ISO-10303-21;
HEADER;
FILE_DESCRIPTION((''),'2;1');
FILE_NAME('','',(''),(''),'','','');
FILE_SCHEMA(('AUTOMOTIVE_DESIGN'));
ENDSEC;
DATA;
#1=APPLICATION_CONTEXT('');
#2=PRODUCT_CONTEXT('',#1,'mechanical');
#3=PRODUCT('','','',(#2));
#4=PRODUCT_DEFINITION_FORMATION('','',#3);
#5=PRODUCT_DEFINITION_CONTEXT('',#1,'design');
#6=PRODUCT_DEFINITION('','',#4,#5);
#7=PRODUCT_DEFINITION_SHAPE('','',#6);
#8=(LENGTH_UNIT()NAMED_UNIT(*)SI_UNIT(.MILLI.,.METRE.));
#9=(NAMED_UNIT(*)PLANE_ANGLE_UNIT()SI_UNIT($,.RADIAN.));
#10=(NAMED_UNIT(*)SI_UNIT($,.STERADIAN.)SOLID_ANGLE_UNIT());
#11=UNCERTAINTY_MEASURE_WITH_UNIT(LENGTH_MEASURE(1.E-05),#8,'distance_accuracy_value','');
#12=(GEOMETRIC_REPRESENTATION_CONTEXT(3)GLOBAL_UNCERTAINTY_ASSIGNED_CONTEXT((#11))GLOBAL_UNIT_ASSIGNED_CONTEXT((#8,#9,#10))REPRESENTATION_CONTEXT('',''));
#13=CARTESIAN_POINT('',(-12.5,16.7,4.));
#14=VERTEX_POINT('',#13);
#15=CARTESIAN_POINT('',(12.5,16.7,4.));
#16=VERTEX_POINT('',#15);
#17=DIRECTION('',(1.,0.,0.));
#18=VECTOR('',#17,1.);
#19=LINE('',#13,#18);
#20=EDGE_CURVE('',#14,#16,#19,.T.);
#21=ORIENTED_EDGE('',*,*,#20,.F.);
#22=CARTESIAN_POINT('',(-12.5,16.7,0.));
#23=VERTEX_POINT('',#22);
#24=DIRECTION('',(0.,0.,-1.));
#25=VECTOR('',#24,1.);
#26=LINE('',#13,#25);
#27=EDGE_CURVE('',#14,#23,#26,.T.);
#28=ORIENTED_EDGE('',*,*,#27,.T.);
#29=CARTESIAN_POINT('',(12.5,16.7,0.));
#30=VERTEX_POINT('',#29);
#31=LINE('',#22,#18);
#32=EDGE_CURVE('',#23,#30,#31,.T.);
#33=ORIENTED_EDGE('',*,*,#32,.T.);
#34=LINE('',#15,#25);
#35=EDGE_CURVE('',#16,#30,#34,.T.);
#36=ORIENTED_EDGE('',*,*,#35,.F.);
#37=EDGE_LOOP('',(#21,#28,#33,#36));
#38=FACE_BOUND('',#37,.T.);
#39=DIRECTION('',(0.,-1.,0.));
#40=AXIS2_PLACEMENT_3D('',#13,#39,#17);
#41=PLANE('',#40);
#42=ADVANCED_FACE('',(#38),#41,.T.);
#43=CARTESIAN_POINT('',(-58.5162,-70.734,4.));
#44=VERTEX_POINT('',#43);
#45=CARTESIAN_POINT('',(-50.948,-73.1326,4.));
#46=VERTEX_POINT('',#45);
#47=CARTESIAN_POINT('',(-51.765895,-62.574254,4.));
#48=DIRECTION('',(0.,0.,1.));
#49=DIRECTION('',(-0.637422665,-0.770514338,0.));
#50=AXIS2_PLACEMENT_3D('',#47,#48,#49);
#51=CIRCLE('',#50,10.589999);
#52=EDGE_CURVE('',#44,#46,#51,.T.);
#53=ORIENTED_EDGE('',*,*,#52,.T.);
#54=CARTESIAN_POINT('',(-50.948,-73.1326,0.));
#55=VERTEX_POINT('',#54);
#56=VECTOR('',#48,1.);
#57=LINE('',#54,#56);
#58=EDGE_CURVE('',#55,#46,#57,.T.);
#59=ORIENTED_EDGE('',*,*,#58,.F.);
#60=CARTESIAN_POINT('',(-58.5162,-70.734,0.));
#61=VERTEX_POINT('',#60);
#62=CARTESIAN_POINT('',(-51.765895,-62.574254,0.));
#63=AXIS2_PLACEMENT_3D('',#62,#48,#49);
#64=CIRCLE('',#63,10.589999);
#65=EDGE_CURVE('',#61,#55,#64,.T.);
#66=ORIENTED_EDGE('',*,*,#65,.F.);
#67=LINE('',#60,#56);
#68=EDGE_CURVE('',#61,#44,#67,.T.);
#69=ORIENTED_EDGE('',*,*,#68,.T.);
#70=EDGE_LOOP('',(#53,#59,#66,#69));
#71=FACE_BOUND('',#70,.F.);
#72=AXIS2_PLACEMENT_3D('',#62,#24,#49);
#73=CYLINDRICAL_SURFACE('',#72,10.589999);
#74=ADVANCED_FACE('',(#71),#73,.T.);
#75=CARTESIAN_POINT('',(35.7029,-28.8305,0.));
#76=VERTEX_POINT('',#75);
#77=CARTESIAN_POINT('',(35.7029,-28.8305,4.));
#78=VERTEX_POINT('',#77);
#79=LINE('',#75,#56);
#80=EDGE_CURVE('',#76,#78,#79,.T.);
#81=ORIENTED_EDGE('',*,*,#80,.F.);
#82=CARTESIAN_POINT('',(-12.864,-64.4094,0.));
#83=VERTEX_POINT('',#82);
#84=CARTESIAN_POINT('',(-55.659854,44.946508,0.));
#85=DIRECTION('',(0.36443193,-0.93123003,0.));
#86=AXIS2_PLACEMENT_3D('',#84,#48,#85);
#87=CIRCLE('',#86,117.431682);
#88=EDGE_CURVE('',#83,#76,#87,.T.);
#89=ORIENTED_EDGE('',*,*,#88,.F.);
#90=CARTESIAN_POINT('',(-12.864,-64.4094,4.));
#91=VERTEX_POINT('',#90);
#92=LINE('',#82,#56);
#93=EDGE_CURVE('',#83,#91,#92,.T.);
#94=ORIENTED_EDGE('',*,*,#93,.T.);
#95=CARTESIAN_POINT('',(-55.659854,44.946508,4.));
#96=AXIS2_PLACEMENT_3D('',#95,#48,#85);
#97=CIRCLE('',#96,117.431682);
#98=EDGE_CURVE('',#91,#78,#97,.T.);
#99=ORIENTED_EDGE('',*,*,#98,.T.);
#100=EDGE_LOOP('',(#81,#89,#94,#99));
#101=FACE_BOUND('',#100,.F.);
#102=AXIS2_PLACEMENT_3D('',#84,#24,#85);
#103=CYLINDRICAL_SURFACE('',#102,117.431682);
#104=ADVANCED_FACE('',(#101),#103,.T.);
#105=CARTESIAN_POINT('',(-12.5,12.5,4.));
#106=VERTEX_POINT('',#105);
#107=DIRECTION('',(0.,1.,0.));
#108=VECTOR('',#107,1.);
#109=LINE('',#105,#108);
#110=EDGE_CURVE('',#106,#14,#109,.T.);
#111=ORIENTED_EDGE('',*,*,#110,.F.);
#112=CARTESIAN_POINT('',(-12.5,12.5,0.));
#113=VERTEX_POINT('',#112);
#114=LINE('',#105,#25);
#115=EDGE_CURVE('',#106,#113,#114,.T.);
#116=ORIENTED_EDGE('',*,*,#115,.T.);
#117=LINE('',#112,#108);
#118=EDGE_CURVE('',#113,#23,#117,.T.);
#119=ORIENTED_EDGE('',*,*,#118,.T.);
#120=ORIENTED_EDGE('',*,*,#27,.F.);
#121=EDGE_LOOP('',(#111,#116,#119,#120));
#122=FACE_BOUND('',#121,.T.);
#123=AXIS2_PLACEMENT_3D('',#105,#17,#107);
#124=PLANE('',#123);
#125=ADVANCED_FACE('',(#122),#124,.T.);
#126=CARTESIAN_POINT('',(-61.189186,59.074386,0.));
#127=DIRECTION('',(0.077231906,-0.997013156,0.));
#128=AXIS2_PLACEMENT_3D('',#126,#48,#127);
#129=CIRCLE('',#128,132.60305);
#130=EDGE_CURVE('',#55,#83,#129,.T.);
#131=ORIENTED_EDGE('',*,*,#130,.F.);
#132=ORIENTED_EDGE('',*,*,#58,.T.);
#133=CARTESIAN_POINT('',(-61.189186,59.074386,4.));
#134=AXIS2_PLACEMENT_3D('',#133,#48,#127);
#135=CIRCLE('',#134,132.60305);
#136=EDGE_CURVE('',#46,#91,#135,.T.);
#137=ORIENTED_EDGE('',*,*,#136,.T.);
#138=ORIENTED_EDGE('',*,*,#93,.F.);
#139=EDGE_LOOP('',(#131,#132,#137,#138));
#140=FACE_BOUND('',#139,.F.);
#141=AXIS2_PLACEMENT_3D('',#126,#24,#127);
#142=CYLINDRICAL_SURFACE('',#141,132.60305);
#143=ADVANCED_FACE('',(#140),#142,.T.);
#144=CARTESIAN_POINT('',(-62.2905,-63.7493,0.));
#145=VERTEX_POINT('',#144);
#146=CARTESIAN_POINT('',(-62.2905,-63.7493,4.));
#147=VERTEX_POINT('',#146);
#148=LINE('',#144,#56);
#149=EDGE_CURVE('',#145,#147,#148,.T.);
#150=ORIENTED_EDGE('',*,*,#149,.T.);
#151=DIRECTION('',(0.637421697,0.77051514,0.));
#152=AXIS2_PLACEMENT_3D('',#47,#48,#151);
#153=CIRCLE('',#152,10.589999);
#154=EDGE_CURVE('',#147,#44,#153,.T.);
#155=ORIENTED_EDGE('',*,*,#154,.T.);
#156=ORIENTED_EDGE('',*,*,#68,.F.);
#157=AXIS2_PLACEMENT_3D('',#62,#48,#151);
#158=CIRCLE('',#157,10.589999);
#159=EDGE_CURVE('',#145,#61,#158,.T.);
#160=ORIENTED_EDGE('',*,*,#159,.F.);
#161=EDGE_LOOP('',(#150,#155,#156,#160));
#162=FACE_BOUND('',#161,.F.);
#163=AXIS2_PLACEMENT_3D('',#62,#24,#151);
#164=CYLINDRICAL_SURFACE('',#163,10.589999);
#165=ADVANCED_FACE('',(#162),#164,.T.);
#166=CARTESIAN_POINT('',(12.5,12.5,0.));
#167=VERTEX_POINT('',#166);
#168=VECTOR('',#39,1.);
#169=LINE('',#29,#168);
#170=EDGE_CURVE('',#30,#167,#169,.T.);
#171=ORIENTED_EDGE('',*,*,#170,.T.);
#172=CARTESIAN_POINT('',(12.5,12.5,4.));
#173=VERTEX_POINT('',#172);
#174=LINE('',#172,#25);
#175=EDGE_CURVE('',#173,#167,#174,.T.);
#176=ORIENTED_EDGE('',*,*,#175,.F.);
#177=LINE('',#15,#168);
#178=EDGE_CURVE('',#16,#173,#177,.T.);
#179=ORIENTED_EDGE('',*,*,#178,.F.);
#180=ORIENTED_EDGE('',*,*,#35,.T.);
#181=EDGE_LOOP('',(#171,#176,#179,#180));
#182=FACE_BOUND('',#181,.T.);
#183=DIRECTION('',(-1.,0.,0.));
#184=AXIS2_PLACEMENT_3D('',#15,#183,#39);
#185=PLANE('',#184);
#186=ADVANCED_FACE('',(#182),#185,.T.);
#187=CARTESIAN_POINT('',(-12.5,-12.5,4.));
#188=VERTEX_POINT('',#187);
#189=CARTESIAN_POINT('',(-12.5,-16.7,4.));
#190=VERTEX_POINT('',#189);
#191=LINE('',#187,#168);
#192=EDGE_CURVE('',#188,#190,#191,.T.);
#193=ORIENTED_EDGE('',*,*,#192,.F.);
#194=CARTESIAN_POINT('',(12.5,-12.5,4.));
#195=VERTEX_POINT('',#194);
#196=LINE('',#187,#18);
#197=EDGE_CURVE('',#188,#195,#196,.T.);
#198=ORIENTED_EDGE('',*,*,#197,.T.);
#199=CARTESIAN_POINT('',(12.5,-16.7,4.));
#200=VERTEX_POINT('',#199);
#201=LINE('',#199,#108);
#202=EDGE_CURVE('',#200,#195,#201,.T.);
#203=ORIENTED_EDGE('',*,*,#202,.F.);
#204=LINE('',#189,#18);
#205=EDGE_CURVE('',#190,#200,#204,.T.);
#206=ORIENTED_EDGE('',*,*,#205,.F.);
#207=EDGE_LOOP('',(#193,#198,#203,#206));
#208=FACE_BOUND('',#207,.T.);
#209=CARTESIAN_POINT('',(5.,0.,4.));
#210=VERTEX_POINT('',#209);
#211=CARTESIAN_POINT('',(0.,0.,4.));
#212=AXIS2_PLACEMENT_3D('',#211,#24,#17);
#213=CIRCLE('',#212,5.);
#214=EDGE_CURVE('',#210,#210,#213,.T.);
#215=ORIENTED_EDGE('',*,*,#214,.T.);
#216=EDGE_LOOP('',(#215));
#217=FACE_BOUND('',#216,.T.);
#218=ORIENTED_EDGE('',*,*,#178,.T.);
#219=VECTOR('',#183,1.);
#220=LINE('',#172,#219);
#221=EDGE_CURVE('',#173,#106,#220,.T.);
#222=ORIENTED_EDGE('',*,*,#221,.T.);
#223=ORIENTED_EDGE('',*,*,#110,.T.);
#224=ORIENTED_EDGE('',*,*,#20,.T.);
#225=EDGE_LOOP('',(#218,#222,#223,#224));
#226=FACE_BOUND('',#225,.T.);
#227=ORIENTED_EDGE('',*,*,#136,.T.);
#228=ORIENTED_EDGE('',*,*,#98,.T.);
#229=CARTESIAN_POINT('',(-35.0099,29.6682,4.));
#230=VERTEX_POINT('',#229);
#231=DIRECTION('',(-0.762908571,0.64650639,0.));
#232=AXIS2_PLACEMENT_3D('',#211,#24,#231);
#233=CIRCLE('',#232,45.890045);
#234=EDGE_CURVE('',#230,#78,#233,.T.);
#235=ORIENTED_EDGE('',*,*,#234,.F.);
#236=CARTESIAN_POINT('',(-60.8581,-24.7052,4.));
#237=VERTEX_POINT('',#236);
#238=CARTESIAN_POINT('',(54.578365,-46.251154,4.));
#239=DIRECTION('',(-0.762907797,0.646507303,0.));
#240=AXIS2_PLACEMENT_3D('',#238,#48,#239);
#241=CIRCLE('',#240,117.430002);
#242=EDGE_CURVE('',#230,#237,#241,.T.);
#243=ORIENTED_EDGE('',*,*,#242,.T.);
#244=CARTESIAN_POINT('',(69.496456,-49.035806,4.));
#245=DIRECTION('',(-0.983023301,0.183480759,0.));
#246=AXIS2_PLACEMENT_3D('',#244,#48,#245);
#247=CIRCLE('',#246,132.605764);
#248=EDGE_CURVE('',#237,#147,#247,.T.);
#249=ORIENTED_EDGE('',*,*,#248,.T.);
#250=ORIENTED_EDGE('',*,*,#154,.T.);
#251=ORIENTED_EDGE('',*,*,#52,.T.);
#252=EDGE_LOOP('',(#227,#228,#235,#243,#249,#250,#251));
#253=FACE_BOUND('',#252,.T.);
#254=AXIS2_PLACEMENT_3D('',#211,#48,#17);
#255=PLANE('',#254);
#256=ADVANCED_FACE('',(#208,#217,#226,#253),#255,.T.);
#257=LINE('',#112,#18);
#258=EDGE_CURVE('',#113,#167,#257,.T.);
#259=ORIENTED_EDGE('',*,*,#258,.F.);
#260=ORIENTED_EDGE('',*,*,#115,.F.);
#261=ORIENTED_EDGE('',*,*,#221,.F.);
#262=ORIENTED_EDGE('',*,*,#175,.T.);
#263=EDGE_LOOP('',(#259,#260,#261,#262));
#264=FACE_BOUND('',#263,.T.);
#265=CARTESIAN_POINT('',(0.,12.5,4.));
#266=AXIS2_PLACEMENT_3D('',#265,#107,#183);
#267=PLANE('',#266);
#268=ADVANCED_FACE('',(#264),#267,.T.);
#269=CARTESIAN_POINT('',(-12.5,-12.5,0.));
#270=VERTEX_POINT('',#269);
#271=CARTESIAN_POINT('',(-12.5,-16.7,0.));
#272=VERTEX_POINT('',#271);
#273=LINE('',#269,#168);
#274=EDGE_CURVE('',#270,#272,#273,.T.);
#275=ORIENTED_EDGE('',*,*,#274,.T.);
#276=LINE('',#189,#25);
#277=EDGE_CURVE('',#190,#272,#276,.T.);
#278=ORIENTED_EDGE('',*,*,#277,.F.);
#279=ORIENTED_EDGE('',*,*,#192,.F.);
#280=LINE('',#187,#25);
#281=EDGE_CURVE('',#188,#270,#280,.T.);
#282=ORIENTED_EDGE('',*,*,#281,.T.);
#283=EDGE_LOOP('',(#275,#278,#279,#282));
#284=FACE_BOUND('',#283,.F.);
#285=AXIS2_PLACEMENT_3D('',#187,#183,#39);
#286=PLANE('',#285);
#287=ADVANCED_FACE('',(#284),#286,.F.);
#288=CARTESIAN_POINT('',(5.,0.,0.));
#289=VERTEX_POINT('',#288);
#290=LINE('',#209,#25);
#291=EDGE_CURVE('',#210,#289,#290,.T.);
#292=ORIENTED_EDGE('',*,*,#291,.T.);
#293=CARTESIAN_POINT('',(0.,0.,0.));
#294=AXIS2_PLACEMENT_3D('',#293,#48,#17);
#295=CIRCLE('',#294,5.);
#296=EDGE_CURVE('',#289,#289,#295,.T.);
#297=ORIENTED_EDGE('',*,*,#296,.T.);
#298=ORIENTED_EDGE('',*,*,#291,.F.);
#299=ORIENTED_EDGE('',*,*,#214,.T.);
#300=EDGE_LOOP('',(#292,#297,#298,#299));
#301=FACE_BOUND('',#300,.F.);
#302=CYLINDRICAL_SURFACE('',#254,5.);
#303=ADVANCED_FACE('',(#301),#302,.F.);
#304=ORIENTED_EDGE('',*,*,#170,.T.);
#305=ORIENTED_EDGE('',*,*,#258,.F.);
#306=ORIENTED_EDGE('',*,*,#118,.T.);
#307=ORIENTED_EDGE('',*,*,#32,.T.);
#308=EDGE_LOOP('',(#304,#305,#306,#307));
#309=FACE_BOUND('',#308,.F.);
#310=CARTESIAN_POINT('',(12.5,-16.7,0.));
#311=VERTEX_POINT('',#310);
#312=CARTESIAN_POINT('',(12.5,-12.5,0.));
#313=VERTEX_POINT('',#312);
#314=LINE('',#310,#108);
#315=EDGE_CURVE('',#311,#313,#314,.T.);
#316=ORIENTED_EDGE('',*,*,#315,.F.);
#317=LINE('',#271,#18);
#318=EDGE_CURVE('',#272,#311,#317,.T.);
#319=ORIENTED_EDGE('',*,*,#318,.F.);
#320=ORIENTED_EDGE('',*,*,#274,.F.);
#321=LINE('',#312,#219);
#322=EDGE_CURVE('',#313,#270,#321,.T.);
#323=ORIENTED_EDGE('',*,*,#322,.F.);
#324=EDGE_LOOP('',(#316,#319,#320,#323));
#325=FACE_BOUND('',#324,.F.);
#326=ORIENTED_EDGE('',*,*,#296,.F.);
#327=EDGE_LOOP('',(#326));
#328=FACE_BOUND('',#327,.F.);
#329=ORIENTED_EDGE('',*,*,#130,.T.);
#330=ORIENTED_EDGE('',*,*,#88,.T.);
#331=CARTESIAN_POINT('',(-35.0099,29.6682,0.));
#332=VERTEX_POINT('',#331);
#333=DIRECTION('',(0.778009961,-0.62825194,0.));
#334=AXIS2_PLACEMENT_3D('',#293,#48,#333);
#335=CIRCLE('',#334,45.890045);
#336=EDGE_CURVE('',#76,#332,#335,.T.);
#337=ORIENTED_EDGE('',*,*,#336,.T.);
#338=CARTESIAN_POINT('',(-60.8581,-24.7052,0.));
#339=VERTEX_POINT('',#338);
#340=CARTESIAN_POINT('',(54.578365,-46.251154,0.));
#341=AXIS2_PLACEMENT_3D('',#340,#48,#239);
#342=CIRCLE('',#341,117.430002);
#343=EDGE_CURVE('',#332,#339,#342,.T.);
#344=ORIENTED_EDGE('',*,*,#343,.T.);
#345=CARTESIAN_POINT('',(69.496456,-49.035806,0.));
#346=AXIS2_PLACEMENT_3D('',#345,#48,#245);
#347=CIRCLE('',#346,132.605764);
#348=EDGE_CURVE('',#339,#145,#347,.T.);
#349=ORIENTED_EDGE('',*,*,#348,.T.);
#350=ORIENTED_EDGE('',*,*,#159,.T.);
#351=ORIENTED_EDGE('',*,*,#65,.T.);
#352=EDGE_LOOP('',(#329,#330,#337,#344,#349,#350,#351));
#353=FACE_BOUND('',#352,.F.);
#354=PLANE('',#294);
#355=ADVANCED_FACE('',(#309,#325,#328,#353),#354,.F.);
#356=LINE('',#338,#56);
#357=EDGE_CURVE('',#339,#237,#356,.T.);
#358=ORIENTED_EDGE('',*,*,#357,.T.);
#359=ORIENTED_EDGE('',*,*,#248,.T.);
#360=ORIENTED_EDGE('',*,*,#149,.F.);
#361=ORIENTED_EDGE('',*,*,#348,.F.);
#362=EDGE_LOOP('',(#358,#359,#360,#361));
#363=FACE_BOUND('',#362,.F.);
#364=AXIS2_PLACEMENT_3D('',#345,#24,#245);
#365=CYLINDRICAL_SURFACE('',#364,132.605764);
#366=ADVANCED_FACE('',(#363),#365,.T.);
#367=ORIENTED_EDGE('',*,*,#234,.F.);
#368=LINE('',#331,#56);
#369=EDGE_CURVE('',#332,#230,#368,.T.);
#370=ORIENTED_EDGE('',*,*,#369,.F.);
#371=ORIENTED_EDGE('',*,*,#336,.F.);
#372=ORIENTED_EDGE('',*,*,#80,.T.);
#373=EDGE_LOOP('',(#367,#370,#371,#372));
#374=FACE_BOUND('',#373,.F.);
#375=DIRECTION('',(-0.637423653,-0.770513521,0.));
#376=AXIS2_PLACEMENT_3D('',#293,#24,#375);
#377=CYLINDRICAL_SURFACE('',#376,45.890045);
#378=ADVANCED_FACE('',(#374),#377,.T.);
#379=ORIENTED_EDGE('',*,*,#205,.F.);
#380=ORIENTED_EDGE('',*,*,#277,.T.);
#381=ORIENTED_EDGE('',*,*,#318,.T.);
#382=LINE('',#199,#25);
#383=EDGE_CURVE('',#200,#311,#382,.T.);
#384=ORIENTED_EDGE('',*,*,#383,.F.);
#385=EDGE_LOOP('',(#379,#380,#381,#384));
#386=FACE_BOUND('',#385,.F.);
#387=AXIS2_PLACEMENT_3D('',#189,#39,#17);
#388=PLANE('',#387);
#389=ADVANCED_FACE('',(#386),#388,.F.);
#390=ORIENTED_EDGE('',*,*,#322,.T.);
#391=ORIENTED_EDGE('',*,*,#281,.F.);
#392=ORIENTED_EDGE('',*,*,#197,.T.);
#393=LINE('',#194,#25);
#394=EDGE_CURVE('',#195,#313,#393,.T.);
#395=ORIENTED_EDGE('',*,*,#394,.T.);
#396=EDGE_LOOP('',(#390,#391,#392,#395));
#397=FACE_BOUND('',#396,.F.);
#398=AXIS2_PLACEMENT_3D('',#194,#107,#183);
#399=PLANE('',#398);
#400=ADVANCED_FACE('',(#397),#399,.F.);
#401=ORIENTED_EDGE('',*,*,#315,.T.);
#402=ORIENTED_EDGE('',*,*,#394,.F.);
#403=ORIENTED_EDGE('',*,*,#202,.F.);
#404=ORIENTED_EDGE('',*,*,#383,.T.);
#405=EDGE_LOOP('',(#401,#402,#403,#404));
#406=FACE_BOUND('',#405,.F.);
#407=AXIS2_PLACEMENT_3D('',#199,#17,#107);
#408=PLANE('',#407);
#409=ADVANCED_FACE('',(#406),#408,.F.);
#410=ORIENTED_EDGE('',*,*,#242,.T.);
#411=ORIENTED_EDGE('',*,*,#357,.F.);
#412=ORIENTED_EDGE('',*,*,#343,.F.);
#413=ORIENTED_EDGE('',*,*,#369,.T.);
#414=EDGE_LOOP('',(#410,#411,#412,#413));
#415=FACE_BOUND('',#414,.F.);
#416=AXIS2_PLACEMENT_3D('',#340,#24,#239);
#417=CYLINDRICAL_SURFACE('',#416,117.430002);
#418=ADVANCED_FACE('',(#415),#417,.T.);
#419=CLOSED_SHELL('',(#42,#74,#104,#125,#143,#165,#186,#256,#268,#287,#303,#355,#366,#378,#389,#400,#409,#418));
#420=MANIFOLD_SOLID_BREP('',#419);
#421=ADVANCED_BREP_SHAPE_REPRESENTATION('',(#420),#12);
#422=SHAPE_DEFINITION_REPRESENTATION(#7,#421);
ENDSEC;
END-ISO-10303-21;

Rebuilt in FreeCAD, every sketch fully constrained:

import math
import FreeCAD as App
import Part
import Sketcher

doc = App.newDocument("Part")
params = doc.addObject("Spreadsheet::Sheet", "Params")
for row, (alias, value) in enumerate([
    ("sketch1_radius", "45.89 mm"),
    ("sketch1_radius2", "10.59 mm"),
    ("pad1_length", "4 mm"),
    ("sketch2_diameter", "10 mm"),
    ("sketch2_width", "25 mm"),
    ("sketch2_height", "4.2 mm"),
    ("pocket1_length", "4 mm"),
], start=1):
    params.set(f"A{row}", alias)
    params.set(f"B{row}", "=" + value)
    params.setAlias(f"B{row}", alias)

body = doc.addObject("PartDesign::Body", "Body")

sketch1 = body.newObject("Sketcher::SketchObject", "Sketch")
sketch1.AttachmentSupport = (doc.getObject("XY_Plane"), [""])
sketch1.MapMode = "FlatFace"
sketch1.addGeometry([
    Part.ArcOfCircle(Part.Circle(App.Vector(0, 0, 0), App.Vector(0, 0, 1), 45.890045), math.radians(-38.921271), math.radians(139.721286)),
    Part.ArcOfCircle(Part.Circle(App.Vector(54.5789, -46.2515, 0), App.Vector(0, 0, 1), 117.430635), math.radians(139.721258), math.radians(169.427407)),
    Part.ArcOfCircle(Part.Circle(App.Vector(69.4964, -49.0358, 0), App.Vector(0, 0, 1), 132.605708), math.radians(169.427428), math.radians(186.370472)),
    Part.ArcOfCircle(Part.Circle(App.Vector(-51.7659, -62.5742, 0), App.Vector(0, 0, 1), 10.590037), math.radians(-173.629158), math.radians(-129.599693)),
    Part.ArcOfCircle(Part.Circle(App.Vector(-51.7659, -62.5742, 0), App.Vector(0, 0, 1), 10.590037), math.radians(-129.599693), math.radians(-85.570463)),
    Part.ArcOfCircle(Part.Circle(App.Vector(-61.189186, 59.074386, 0), App.Vector(0, 0, 1), 132.60305), math.radians(-85.570527), math.radians(-68.627187)),
    Part.ArcOfCircle(Part.Circle(App.Vector(-55.659854, 44.946508, 0), App.Vector(0, 0, 1), 117.431682), math.radians(-68.627373), math.radians(-38.921476)),
], False)
sketch1.addConstraint([
    Sketcher.Constraint("Coincident", 0, 2, 1, 1),
    Sketcher.Constraint("Coincident", 1, 2, 2, 1),
    Sketcher.Constraint("Coincident", 2, 2, 3, 1),
    Sketcher.Constraint("Coincident", 3, 2, 4, 1),
    Sketcher.Constraint("Coincident", 4, 2, 5, 1),
    Sketcher.Constraint("Coincident", 5, 2, 6, 1),
    Sketcher.Constraint("Coincident", 6, 2, 0, 1),
    Sketcher.Constraint("Coincident", 0, 3, -1, 1),
    Sketcher.Constraint("Coincident", 4, 3, 3, 3),
    Sketcher.Constraint("Radius", 0, 45.89),
    Sketcher.Constraint("Radius", 3, 10.59),
    Sketcher.Constraint("Radius", 5, 132.603),
    Sketcher.Constraint("Radius", 1, 117.4306),
    Sketcher.Constraint("Radius", 2, 132.6057),
    Sketcher.Constraint("Radius", 6, 117.4317),
    Sketcher.Constraint("DistanceX", 0, 2, -1, 1, 35.01),
    Sketcher.Constraint("DistanceX", 6, 3, 0, 2, 20.65),
    Sketcher.Constraint("DistanceY", 5, 2, 2, 2, 0.66),
    Sketcher.Constraint("DistanceX", -1, 1, 1, 3, 54.579),
    Sketcher.Constraint("DistanceX", 3, 3, -1, 1, 51.766),
    Sketcher.Constraint("DistanceY", 3, 2, -1, 1, 70.734),
    Sketcher.Constraint("DistanceX", 4, 2, -1, 1, 50.948),
    Sketcher.Constraint("DistanceX", 5, 2, -1, 1, 12.864),
    Sketcher.Constraint("DistanceX", -1, 1, 6, 2, 35.703),
    Sketcher.Constraint("DistanceX", 5, 3, 1, 3, 115.768),
    Sketcher.Constraint("DistanceY", 3, 3, 1, 2, 37.869),
])
sketch1.setExpression("Constraints[9]", "Params.sketch1_radius")
sketch1.setExpression("Constraints[10]", "Params.sketch1_radius2")
pad1 = body.newObject("PartDesign::Pad", "Pad")
pad1.Profile = sketch1
pad1.setExpression("Length", "Params.pad1_length")

sketch2 = body.newObject("Sketcher::SketchObject", "Sketch001")
sketch2.AttachmentSupport = (doc.getObject("XY_Plane"), [""])
sketch2.MapMode = "FlatFace"
sketch2.AttachmentOffset = App.Placement(App.Vector(0, 0, 4), App.Rotation())
sketch2.addGeometry([
    Part.Circle(App.Vector(0, 0, 0), App.Vector(0, 0, 1), 5),
    Part.LineSegment(App.Vector(-12.5, 12.5, 0), App.Vector(12.5, 12.5, 0)),
    Part.LineSegment(App.Vector(12.5, 12.5, 0), App.Vector(12.5, 16.7, 0)),
    Part.LineSegment(App.Vector(12.5, 16.7, 0), App.Vector(-12.5, 16.7, 0)),
    Part.LineSegment(App.Vector(-12.5, 16.7, 0), App.Vector(-12.5, 12.5, 0)),
    Part.LineSegment(App.Vector(12.5, -12.5, 0), App.Vector(-12.5, -12.5, 0)),
    Part.LineSegment(App.Vector(-12.5, -12.5, 0), App.Vector(-12.5, -16.7, 0)),
    Part.LineSegment(App.Vector(-12.5, -16.7, 0), App.Vector(12.5, -16.7, 0)),
    Part.LineSegment(App.Vector(12.5, -16.7, 0), App.Vector(12.5, -12.5, 0)),
], False)
sketch2.addConstraint([
    Sketcher.Constraint("Coincident", 1, 2, 2, 1),
    Sketcher.Constraint("Coincident", 2, 2, 3, 1),
    Sketcher.Constraint("Coincident", 3, 2, 4, 1),
    Sketcher.Constraint("Coincident", 4, 2, 1, 1),
    Sketcher.Constraint("Coincident", 5, 2, 6, 1),
    Sketcher.Constraint("Coincident", 6, 2, 7, 1),
    Sketcher.Constraint("Coincident", 7, 2, 8, 1),
    Sketcher.Constraint("Coincident", 8, 2, 5, 1),
    Sketcher.Constraint("Horizontal", 1),
    Sketcher.Constraint("Vertical", 2),
    Sketcher.Constraint("Horizontal", 3),
    Sketcher.Constraint("Vertical", 4),
    Sketcher.Constraint("Horizontal", 5),
    Sketcher.Constraint("Vertical", 6),
    Sketcher.Constraint("Horizontal", 7),
    Sketcher.Constraint("Vertical", 8),
    Sketcher.Constraint("Coincident", 0, 3, -1, 1),
    Sketcher.Constraint("Symmetric", 1, 2, 5, 2, -1, 1),
    Sketcher.Constraint("Symmetric", 3, 2, 7, 2, -1, 1),
    Sketcher.Constraint("Vertical", 4, 2, 5, 2),
    Sketcher.Constraint("Diameter", 0, 10.0),
    Sketcher.Constraint("DistanceX", 1, 1, 1, 2, 25.0),
    Sketcher.Constraint("DistanceY", 2, 1, 2, 2, 4.2),
    Sketcher.Constraint("DistanceY", 5, 2, 4, 2, 25.0),
])
sketch2.setExpression("Constraints[20]", "Params.sketch2_diameter")
sketch2.setExpression("Constraints[21]", "Params.sketch2_width")
sketch2.setExpression("Constraints[22]", "Params.sketch2_height")
pocket1 = body.newObject("PartDesign::Pocket", "Pocket")
pocket1.Profile = sketch2
pocket1.setExpression("Length", "Params.pocket1_length")

doc.recompute()
